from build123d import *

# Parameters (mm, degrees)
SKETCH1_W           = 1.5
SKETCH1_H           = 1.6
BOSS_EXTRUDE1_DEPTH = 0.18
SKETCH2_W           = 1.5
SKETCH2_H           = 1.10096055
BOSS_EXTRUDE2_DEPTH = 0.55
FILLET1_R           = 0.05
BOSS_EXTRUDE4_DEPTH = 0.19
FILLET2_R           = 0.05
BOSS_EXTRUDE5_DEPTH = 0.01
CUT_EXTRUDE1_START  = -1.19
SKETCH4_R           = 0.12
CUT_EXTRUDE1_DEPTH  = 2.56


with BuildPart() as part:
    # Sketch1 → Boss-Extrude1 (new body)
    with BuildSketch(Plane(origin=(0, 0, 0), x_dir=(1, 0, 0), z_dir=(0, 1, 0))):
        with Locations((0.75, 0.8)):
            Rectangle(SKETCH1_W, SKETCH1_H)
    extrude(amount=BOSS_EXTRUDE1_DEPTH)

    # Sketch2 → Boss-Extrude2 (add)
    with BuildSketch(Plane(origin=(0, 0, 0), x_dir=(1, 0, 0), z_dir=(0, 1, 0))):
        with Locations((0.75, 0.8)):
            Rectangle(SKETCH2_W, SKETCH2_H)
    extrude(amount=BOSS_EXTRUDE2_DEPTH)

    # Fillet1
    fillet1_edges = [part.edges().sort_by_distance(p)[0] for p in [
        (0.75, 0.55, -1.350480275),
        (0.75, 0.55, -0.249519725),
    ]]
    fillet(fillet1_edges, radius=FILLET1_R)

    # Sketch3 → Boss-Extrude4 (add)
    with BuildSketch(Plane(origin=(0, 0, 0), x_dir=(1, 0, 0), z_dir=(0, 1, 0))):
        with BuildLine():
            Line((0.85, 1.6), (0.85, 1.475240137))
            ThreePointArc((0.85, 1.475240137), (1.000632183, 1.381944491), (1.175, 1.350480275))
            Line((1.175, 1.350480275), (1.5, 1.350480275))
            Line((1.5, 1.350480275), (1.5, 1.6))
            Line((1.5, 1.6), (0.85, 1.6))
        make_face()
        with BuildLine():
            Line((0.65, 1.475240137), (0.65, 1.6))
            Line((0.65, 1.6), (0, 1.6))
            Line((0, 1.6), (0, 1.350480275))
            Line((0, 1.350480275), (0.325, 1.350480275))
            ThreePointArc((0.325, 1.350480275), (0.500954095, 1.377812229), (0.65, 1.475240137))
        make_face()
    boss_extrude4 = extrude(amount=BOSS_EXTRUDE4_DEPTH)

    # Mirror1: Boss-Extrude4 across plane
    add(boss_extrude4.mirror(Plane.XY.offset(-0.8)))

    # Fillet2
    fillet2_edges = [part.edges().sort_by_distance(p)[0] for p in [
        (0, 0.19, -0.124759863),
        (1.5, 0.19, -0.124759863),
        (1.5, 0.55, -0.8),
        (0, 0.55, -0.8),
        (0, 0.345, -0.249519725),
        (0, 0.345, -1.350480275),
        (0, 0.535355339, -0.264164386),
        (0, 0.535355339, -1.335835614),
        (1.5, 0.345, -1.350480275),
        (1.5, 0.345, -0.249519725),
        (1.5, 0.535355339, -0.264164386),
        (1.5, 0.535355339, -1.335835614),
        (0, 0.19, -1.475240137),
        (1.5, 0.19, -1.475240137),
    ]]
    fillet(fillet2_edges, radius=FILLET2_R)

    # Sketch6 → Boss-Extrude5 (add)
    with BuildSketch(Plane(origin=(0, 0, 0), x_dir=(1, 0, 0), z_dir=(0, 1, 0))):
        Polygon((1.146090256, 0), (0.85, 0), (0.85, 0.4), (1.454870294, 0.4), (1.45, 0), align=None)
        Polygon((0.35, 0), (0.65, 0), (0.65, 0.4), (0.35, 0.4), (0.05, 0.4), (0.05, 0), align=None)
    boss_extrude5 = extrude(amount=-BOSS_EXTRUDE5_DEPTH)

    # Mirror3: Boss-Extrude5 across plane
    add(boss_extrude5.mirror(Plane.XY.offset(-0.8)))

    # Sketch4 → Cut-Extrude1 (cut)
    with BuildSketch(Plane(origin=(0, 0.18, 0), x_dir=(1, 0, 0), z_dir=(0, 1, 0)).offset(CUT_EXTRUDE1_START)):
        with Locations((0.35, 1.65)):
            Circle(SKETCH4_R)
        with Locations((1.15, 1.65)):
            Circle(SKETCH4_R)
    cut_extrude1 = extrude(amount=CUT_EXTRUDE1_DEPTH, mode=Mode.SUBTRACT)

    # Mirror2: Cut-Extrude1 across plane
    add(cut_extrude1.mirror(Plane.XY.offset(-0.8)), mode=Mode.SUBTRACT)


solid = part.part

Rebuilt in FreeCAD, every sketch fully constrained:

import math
import FreeCAD as App
import Part
import Sketcher

V = App.Vector
Q = App.Units.Quantity


def edges_at(feature, points):
    """Names of the edges that pass closest to the given points."""
    edges = feature.Shape.Edges
    near = lambda p: min(range(len(edges)), key=lambda i: edges[i].distToShape(Part.Vertex(*p))[0])
    return sorted({f"Edge{near(p) + 1}" for p in points})

doc = App.newDocument("Part")
body = doc.addObject("PartDesign::Body", "Body")

# Sketch on XZ plane
sketch1 = body.newObject("Sketcher::SketchObject", "Sketch")
sketch1.AttachmentSupport = (doc.getObject("XZ_Plane"), [""])
sketch1.MapMode = "FlatFace"
sketch1.addGeometry([
    Part.LineSegment(V(0, -1.6, 0), V(0, 0, 0)),
    Part.LineSegment(V(0, 0, 0), V(1.5, 0, 0)),
    Part.LineSegment(V(1.5, 0, 0), V(1.5, -1.6, 0)),
    Part.LineSegment(V(1.5, -1.6, 0), V(0, -1.6, 0)),
], False)
sketch1.addConstraint([
    Sketcher.Constraint("Coincident", 0, 2, 1, 1),
    Sketcher.Constraint("Coincident", 1, 2, 2, 1),
    Sketcher.Constraint("Coincident", 2, 2, 3, 1),
    Sketcher.Constraint("Coincident", 3, 2, 0, 1),
    Sketcher.Constraint("Vertical", 0),
    Sketcher.Constraint("Horizontal", 1),
    Sketcher.Constraint("Vertical", 2),
    Sketcher.Constraint("Horizontal", 3),
    Sketcher.Constraint("Coincident", 0, 2, -1, 1),
    Sketcher.Constraint("DistanceX", 1, 1, 1, 2, Q("1.5 mm")),
    Sketcher.Constraint("DistanceY", 0, 1, 0, 2, Q("1.6 mm")),
])
pad1 = body.newObject("PartDesign::Pad", "Pad")
pad1.Profile = sketch1
pad1.Length = 0.18
pad1.Reversed = True

# Sketch on XZ plane
sketch2 = body.newObject("Sketcher::SketchObject", "Sketch001")
sketch2.AttachmentSupport = (doc.getObject("XZ_Plane"), [""])
sketch2.MapMode = "FlatFace"
sketch2.addGeometry([
    Part.LineSegment(V(0, -1.35048, 0), V(0, -0.24952, 0)),
    Part.LineSegment(V(0, -0.24952, 0), V(1.5, -0.24952, 0)),
    Part.LineSegment(V(1.5, -0.24952, 0), V(1.5, -1.35048, 0)),
    Part.LineSegment(V(1.5, -1.35048, 0), V(0, -1.35048, 0)),
], False)
sketch2.addConstraint([
    Sketcher.Constraint("Coincident", 0, 2, 1, 1),
    Sketcher.Constraint("Coincident", 1, 2, 2, 1),
    Sketcher.Constraint("Coincident", 2, 2, 3, 1),
    Sketcher.Constraint("Coincident", 3, 2, 0, 1),
    Sketcher.Constraint("Vertical", 0),
    Sketcher.Constraint("Horizontal", 1),
    Sketcher.Constraint("Vertical", 2),
    Sketcher.Constraint("Horizontal", 3),
    Sketcher.Constraint("PointOnObject", 0, 2, -2),
    Sketcher.Constraint("DistanceX", 1, 1, 1, 2, Q("1.5 mm")),
    Sketcher.Constraint("DistanceY", 0, 1, 0, 2, Q("1.100961 mm")),
    Sketcher.Constraint("DistanceY", 0, 2, -1, 1, Q("0.24952 mm")),
])
pad2 = body.newObject("PartDesign::Pad", "Pad001")
pad2.Profile = sketch2
pad2.Length = 0.55
pad2.Reversed = True
doc.recompute()

fillet = body.newObject("PartDesign::Fillet", "Fillet")
fillet.Base = (pad2, edges_at(pad2, [(0.75, 0.55, -1.35), (0.75, 0.55, -0.25)]))
fillet.Radius = 0.05

# Sketch on XZ plane
sketch3 = body.newObject("Sketcher::SketchObject", "Sketch002")
sketch3.AttachmentSupport = (doc.getObject("XZ_Plane"), [""])
sketch3.MapMode = "FlatFace"
sketch3.addGeometry([
    Part.LineSegment(V(0.85, -1.6, 0), V(0.85, -1.47524, 0)),  # 0
    Part.ArcOfCircle(Part.Circle(V(1.170508, -1.824471, 0), V(0, 0, 1), 0.474012), math.radians(89.456978), math.radians(132.544266)),  # 1
    Part.LineSegment(V(1.175, -1.35048, 0), V(1.5, -1.35048, 0)),  # 2
    Part.LineSegment(V(1.5, -1.35048, 0), V(1.5, -1.6, 0)),  # 3
    Part.LineSegment(V(1.5, -1.6, 0), V(0.85, -1.6, 0)),  # 4
    Part.LineSegment(V(0.65, -1.47524, 0), V(0.65, -1.6, 0)),  # 5
    Part.LineSegment(V(0.65, -1.6, 0), V(0, -1.6, 0)),  # 6
    Part.LineSegment(V(0, -1.6, 0), V(0, -1.35048, 0)),  # 7
    Part.LineSegment(V(0, -1.35048, 0), V(0.325, -1.35048, 0)),  # 8
    Part.ArcOfCircle(Part.Circle(V(0.349615, -1.772052, 0), V(0, 0, 1), 0.42229), math.radians(44.657164), math.radians(93.341592)),  # 9
], False)
sketch3.addConstraint([
    Sketcher.Constraint("Coincident", 0, 2, 1, 2),
    Sketcher.Constraint("Coincident", 1, 1, 2, 1),
    Sketcher.Constraint("Coincident", 2, 2, 3, 1),
    Sketcher.Constraint("Coincident", 3, 2, 4, 1),
    Sketcher.Constraint("Coincident", 4, 2, 0, 1),
    Sketcher.Constraint("Coincident", 5, 2, 6, 1),
    Sketcher.Constraint("Coincident", 6, 2, 7, 1),
    Sketcher.Constraint("Coincident", 7, 2, 8, 1),
    Sketcher.Constraint("Coincident", 8, 2, 9, 2),
    Sketcher.Constraint("Coincident", 9, 1, 5, 1),
    Sketcher.Constraint("Vertical", 0),
    Sketcher.Constraint("Horizontal", 2),
    Sketcher.Constraint("Vertical", 3),
    Sketcher.Constraint("Horizontal", 4),
    Sketcher.Constraint("Vertical", 5),
    Sketcher.Constraint("Horizontal", 6),
    Sketcher.Constraint("Vertical", 7),
    Sketcher.Constraint("Horizontal", 8),
    Sketcher.Constraint("PointOnObject", 6, 2, -2),
    Sketcher.Constraint("Horizontal", 4, 2, 5, 2),
    Sketcher.Constraint("Horizontal", 2, 2, 7, 2),
    Sketcher.Constraint("Horizontal", 0, 2, 9, 1),
    Sketcher.Constraint("Equal", 4, 6),
    Sketcher.Constraint("Equal", 2, 8),
    Sketcher.Constraint("DistanceX", 4, 2, 4, 1, Q("0.65 mm")),
    Sketcher.Constraint("DistanceX", -1, 1, 2, 2, Q("1.5 mm")),
    Sketcher.Constraint("DistanceY", 3, 2, -1, 1, Q("1.6 mm")),
    Sketcher.Constraint("DistanceX", 2, 1, 2, 2, Q("0.325 mm")),
    Sketcher.Constraint("Radius", 1, Q("0.474012 mm")),
    Sketcher.Constraint("Radius", 9, Q("0.42229 mm")),
    Sketcher.Constraint("DistanceY", 0, 1, 0, 2, Q("0.12476 mm")),
    Sketcher.Constraint("DistanceY", 3, 2, 3, 1, Q("0.24952 mm")),
])
pad3 = body.newObject("PartDesign::Pad", "Pad002")
pad3.Profile = sketch3
pad3.Length = 0.19
pad3.Reversed = True
doc.recompute()

datumplane = body.newObject("PartDesign::Plane", "DatumPlane")
datumplane.AttachmentSupport = (doc.getObject("XY_Plane"), [""])
datumplane.MapMode = "FlatFace"
datumplane.AttachmentOffset = App.Placement(V(0, 0, -0.8), App.Rotation())
mirrored = body.newObject("PartDesign::Mirrored", "Mirrored")
mirrored.Originals = [pad3]
mirrored.MirrorPlane = (datumplane, [""])
body.Tip = mirrored
doc.recompute()

fillet2 = body.newObject("PartDesign::Fillet", "Fillet001")
fillet2.Base = (mirrored, edges_at(mirrored, [
    (0, 0.19, -0.125),
    (1.5, 0.19, -0.125),
    (1.5, 0.55, -0.8),
    (0, 0.55, -0.8),
    (0, 0.345, -0.25),
    (0, 0.345, -1.35),
    (0, 0.535, -0.264),
    (0, 0.535, -1.336),
    (1.5, 0.345, -1.35),
    (1.5, 0.345, -0.25),
    (1.5, 0.535, -0.264),
    (1.5, 0.535, -1.336),
    (0, 0.19, -1.475),
    (1.5, 0.19, -1.475),
]))
fillet2.Radius = 0.05

# Sketch on XZ plane
sketch4 = body.newObject("Sketcher::SketchObject", "Sketch003")
sketch4.AttachmentSupport = (doc.getObject("XZ_Plane"), [""])
sketch4.MapMode = "FlatFace"
sketch4.addGeometry([
    Part.LineSegment(V(0.85, 0, 0), V(1.45, 0, 0)),  # 0
    Part.LineSegment(V(1.45, 0, 0), V(1.45487, -0.4, 0)),  # 1
    Part.LineSegment(V(1.45487, -0.4, 0), V(0.85, -0.4, 0)),  # 2
    Part.LineSegment(V(0.85, -0.4, 0), V(0.85, 0, 0)),  # 3
    Part.LineSegment(V(0.65, 0, 0), V(0.65, -0.4, 0)),  # 4
    Part.LineSegment(V(0.65, -0.4, 0), V(0.05, -0.4, 0)),  # 5
    Part.LineSegment(V(0.05, -0.4, 0), V(0.05, 0, 0)),  # 6
    Part.LineSegment(V(0.05, 0, 0), V(0.65, 0, 0)),  # 7
], False)
sketch4.addConstraint([
    Sketcher.Constraint("Coincident", 0, 2, 1, 1),
    Sketcher.Constraint("Coincident", 1, 2, 2, 1),
    Sketcher.Constraint("Coincident", 2, 2, 3, 1),
    Sketcher.Constraint("Coincident", 3, 2, 0, 1),
    Sketcher.Constraint("Coincident", 4, 2, 5, 1),
    Sketcher.Constraint("Coincident", 5, 2, 6, 1),
    Sketcher.Constraint("Coincident", 6, 2, 7, 1),
    Sketcher.Constraint("Coincident", 7, 2, 4, 1),
    Sketcher.Constraint("Horizontal", 0),
    Sketcher.Constraint("Horizontal", 2),
    Sketcher.Constraint("Vertical", 3),
    Sketcher.Constraint("Vertical", 4),
    Sketcher.Constraint("Horizontal", 5),
    Sketcher.Constraint("Vertical", 6),
    Sketcher.Constraint("Horizontal", 7),
    Sketcher.Constraint("PointOnObject", 0, 2, -1),
    Sketcher.Constraint("PointOnObject", 6, 2, -1),
    Sketcher.Constraint("Horizontal", 2, 2, 4, 2),
    Sketcher.Constraint("Equal", 0, 5),
    Sketcher.Constraint("DistanceX", 0, 1, 0, 2, Q("0.6 mm")),
    Sketcher.Constraint("DistanceY", 3, 1, 3, 2, Q("0.4 mm")),
    Sketcher.Constraint("DistanceX", 4, 2, 2, 2, Q("0.2 mm")),
    Sketcher.Constraint("DistanceX", -1, 1, 0, 2, Q("1.45 mm")),
    Sketcher.Constraint("DistanceX", 2, 2, 2, 1, Q("0.60487 mm")),
])
pad4 = body.newObject("PartDesign::Pad", "Pad003")
pad4.Profile = sketch4
pad4.Length = 0.01
doc.recompute()

datumplane2 = body.newObject("PartDesign::Plane", "DatumPlane001")
datumplane2.AttachmentSupport = (doc.getObject("XY_Plane"), [""])
datumplane2.MapMode = "FlatFace"
datumplane2.AttachmentOffset = App.Placement(V(0, 0, -0.8), App.Rotation())
mirrored2 = body.newObject("PartDesign::Mirrored", "Mirrored001")
mirrored2.Originals = [pad4]
mirrored2.MirrorPlane = (datumplane2, [""])
body.Tip = mirrored2

# Sketch on XZ plane
sketch5 = body.newObject("Sketcher::SketchObject", "Sketch004")
sketch5.AttachmentSupport = (doc.getObject("XZ_Plane"), [""])
sketch5.MapMode = "FlatFace"
sketch5.AttachmentOffset = App.Placement(V(0, 0, 1.01), App.Rotation())
sketch5.addGeometry([
    Part.Circle(V(0.35, -1.65, 0), V(0, 0, 1), 0.12),
    Part.Circle(V(1.15, -1.65, 0), V(0, 0, 1), 0.12),
], False)
sketch5.addConstraint([
    Sketcher.Constraint("Equal", 0, 1),
    Sketcher.Constraint("Horizontal", 0, 3, 1, 3),
    Sketcher.Constraint("Diameter", 0, Q("0.24 mm")),
    Sketcher.Constraint("DistanceX", 0, 3, 1, 3, Q("0.8 mm")),
    Sketcher.Constraint("DistanceX", -1, 1, 0, 3, Q("0.35 mm")),
    Sketcher.Constraint("DistanceY", 0, 3, -1, 1, Q("1.65 mm")),
])
pocket1 = body.newObject("PartDesign::Pocket", "Pocket")
pocket1.Profile = sketch5
pocket1.Length = 2.56
doc.recompute()

datumplane3 = body.newObject("PartDesign::Plane", "DatumPlane002")
datumplane3.AttachmentSupport = (doc.getObject("XY_Plane"), [""])
datumplane3.MapMode = "FlatFace"
datumplane3.AttachmentOffset = App.Placement(V(0, 0, -0.8), App.Rotation())
mirrored3 = body.newObject("PartDesign::Mirrored", "Mirrored002")
mirrored3.Originals = [pocket1]
mirrored3.MirrorPlane = (datumplane3, [""])
body.Tip = mirrored3

doc.recompute()
